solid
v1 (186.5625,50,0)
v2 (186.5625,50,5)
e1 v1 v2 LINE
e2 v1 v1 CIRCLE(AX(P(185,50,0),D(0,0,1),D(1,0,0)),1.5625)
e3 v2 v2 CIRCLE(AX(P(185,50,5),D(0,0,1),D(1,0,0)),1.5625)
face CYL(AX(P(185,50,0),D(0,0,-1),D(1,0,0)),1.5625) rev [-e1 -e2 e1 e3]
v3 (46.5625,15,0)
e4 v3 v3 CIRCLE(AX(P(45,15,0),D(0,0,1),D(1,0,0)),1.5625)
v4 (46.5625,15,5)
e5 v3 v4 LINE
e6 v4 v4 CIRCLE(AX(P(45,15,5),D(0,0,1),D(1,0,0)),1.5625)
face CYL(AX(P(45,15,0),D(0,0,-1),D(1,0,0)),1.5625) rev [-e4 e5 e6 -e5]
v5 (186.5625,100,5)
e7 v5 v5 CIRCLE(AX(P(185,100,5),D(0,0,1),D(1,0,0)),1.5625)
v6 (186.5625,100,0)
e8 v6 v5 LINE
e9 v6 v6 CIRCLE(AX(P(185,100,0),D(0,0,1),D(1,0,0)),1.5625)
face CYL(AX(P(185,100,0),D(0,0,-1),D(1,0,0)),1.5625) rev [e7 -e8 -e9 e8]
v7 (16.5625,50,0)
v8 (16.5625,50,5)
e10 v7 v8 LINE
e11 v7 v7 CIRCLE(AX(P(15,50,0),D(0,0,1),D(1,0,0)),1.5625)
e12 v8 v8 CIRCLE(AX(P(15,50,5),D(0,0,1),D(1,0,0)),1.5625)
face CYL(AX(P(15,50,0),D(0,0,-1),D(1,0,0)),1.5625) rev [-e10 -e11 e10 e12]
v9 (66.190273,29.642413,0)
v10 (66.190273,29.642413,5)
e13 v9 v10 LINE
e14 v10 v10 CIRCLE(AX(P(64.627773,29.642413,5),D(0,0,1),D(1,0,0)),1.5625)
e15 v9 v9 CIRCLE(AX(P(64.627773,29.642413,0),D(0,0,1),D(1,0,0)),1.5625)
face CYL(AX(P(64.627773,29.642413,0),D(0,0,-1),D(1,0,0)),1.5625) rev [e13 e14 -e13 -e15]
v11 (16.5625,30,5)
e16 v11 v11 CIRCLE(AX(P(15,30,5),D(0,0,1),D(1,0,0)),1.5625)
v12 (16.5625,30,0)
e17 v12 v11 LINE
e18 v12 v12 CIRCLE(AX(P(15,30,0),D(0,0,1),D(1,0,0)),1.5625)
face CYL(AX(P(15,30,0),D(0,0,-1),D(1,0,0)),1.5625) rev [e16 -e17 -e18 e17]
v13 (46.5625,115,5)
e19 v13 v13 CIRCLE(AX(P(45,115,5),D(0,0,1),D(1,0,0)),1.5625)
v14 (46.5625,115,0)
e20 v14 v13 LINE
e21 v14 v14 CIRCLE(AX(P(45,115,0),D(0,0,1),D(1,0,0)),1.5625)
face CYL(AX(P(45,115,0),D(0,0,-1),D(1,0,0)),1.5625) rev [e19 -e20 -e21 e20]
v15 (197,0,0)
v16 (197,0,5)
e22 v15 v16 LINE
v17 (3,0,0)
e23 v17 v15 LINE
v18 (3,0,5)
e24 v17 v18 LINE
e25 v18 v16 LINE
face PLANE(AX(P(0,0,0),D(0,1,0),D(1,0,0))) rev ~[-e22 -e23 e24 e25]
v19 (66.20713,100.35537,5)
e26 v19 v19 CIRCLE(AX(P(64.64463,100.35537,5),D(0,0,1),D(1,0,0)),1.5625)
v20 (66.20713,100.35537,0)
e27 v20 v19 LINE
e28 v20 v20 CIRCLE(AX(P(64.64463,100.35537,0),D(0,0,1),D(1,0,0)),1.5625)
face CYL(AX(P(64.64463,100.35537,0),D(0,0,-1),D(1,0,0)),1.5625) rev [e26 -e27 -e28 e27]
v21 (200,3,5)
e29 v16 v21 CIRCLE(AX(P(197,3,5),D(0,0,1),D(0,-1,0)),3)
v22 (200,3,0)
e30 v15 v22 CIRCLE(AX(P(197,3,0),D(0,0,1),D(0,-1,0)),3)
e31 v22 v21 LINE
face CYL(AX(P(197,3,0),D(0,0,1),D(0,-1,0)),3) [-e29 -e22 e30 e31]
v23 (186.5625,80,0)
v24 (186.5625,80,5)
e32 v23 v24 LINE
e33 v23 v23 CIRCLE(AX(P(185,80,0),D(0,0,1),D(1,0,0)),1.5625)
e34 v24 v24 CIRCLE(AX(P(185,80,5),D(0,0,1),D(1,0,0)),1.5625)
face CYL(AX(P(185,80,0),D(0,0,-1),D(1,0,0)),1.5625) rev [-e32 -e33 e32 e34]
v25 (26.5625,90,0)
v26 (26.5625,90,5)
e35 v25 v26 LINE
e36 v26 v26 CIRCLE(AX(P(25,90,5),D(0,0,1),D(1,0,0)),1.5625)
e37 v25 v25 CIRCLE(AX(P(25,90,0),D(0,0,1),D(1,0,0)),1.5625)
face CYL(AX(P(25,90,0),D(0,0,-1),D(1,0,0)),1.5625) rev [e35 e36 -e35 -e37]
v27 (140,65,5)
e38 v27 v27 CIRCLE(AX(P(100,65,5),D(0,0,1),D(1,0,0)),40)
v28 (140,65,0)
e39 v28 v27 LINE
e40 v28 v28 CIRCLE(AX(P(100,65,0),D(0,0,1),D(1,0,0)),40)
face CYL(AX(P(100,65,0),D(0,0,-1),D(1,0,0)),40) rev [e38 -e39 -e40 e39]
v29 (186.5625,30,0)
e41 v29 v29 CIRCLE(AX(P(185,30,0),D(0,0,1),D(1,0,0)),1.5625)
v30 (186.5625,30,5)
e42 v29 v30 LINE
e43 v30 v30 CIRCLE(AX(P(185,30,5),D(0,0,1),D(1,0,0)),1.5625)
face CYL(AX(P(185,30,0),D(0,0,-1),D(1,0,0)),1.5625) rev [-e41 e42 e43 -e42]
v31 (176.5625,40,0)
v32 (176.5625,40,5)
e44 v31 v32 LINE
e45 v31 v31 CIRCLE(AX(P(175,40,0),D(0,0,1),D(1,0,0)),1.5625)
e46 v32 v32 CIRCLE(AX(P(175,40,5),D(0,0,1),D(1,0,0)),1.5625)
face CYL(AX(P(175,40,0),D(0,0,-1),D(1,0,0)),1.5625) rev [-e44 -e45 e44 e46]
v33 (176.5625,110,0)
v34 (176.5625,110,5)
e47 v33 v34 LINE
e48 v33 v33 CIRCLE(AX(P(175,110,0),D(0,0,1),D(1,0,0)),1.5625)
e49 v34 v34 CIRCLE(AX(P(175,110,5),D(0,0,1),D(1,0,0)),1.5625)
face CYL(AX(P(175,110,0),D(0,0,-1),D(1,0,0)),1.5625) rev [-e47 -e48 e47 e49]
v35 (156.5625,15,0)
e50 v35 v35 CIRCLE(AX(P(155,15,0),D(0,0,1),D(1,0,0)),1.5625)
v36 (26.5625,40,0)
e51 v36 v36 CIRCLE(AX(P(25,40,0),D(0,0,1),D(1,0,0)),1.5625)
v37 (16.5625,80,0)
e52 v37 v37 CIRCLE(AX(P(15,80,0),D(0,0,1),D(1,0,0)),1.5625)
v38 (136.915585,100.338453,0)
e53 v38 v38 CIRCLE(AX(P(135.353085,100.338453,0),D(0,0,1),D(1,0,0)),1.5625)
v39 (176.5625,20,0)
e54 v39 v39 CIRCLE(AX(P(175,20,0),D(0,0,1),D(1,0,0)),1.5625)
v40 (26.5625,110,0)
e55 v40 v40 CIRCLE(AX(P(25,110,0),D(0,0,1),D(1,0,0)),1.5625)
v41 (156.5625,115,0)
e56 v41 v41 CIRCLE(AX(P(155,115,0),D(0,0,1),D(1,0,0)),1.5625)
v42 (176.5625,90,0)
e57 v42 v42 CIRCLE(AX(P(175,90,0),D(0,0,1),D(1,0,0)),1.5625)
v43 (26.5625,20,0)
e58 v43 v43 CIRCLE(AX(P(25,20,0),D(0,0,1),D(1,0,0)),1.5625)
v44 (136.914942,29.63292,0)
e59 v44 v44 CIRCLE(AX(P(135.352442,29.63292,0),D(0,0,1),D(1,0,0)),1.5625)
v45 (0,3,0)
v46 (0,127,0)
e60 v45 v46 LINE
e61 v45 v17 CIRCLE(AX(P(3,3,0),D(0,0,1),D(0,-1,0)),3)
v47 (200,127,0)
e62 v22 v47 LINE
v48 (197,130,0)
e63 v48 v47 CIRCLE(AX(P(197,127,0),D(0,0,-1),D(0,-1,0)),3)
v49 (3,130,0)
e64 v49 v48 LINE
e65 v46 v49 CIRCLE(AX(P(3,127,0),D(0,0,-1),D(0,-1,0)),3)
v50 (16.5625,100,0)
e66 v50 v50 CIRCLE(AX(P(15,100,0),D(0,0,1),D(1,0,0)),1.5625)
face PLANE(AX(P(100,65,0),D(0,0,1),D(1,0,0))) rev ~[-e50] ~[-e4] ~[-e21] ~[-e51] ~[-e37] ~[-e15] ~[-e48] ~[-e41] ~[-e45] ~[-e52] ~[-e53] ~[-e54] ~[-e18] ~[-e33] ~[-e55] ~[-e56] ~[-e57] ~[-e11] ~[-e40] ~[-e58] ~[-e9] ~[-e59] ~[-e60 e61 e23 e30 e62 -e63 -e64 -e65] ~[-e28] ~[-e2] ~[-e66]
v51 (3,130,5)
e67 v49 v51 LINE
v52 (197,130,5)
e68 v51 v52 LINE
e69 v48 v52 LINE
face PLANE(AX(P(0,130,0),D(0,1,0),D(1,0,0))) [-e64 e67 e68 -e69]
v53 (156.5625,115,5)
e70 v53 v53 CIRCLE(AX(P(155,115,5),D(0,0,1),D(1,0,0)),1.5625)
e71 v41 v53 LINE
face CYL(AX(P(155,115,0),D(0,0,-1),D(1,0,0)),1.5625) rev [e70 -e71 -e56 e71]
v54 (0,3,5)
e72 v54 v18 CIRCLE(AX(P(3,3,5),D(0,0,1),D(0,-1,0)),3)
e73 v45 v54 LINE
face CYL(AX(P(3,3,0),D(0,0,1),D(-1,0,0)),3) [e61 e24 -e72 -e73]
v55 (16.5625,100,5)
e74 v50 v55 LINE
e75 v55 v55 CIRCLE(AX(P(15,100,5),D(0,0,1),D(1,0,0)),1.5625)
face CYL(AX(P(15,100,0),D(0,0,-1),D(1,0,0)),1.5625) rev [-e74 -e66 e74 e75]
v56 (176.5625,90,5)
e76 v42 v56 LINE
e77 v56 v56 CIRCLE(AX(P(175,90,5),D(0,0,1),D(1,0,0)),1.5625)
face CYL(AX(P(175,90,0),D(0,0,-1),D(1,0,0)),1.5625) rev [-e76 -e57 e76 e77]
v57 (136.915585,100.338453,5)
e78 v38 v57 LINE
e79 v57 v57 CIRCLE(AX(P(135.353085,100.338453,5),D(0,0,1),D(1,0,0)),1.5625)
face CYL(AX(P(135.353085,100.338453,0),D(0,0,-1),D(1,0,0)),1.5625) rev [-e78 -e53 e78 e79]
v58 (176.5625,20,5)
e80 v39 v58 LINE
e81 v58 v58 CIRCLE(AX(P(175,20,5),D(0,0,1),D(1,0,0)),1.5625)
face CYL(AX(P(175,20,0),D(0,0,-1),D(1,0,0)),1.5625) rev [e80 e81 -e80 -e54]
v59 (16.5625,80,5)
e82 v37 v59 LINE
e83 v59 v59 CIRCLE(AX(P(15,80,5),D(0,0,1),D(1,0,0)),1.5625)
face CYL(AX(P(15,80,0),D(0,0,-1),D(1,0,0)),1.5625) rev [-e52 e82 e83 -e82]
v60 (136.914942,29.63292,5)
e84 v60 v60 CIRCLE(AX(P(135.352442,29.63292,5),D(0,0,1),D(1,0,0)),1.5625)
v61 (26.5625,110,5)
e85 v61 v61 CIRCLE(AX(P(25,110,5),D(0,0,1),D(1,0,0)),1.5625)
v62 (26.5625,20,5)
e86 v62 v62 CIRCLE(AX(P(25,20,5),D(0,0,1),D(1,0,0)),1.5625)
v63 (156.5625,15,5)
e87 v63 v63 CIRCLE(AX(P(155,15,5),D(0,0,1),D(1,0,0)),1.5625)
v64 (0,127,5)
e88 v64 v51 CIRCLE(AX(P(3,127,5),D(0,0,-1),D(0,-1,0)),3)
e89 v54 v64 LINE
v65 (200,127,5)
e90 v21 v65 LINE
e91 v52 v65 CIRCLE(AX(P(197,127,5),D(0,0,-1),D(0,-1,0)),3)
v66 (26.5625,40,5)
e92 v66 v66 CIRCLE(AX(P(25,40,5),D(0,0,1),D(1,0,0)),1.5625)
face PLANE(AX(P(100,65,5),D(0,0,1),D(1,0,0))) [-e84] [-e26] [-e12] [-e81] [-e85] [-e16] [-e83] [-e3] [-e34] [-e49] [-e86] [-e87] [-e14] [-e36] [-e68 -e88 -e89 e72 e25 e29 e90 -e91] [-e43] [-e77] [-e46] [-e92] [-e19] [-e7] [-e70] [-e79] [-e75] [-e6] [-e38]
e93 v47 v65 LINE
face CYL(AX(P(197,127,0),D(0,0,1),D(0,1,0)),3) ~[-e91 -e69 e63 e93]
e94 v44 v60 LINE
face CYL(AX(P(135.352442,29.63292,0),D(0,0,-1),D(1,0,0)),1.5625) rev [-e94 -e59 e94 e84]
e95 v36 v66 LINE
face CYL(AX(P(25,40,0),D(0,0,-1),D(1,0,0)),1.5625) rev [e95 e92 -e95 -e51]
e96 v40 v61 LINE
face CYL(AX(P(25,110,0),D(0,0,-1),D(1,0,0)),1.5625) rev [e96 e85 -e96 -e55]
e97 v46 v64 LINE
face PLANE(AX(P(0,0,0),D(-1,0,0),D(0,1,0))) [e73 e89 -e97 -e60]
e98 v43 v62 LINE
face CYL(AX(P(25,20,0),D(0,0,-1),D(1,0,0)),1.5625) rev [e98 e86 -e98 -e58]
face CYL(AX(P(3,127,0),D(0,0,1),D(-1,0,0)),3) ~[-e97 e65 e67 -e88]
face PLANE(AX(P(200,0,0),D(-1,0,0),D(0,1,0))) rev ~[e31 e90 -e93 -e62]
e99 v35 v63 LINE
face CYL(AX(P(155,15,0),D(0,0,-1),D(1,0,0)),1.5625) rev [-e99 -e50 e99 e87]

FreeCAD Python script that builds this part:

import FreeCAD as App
import Part
import Sketcher


def edges_at(feature, points):
    """Names of the edges that pass closest to the given points."""
    edges = feature.Shape.Edges
    near = lambda p: min(range(len(edges)), key=lambda i: edges[i].distToShape(Part.Vertex(*p))[0])
    return sorted({f"Edge{near(p) + 1}" for p in points})

doc = App.newDocument("Part")
body = doc.addObject("PartDesign::Body", "Body")

sketch1 = body.newObject("Sketcher::SketchObject", "Sketch")
sketch1.AttachmentSupport = (doc.getObject("XY_Plane"), [""])
sketch1.MapMode = "FlatFace"
sketch1.addGeometry(Part.LineSegment(App.Vector(0, 130, 0), App.Vector(0, 0, 0)), False)
sketch1.addGeometry(Part.LineSegment(App.Vector(0, 0, 0), App.Vector(200, 0, 0)), False)
sketch1.addGeometry(Part.LineSegment(App.Vector(200, 0, 0), App.Vector(200, 130, 0)), False)
sketch1.addGeometry(Part.LineSegment(App.Vector(200, 130, 0), App.Vector(0, 130, 0)), False)
sketch1.addGeometry(Part.Circle(App.Vector(25, 20, 0), App.Vector(0, 0, 1), 1.5625), False)
sketch1.addGeometry(Part.Circle(App.Vector(45, 15, 0), App.Vector(0, 0, 1), 1.5625), False)
sketch1.addGeometry(Part.Circle(App.Vector(15, 30, 0), App.Vector(0, 0, 1), 1.5625), False)
sketch1.addGeometry(Part.Circle(App.Vector(64.627773, 29.642413, 0), App.Vector(0, 0, 1), 1.5625), False)
sketch1.addGeometry(Part.Circle(App.Vector(25, 40, 0), App.Vector(0, 0, 1), 1.5625), False)
sketch1.addGeometry(Part.Circle(App.Vector(15, 50, 0), App.Vector(0, 0, 1), 1.5625), False)
sketch1.addGeometry(Part.Circle(App.Vector(135.352442, 29.63292, 0), App.Vector(0, 0, 1), 1.5625), False)
sketch1.addGeometry(Part.Circle(App.Vector(155, 15, 0), App.Vector(0, 0, 1), 1.5625), False)
sketch1.addGeometry(Part.Circle(App.Vector(175, 20, 0), App.Vector(0, 0, 1), 1.5625), False)
sketch1.addGeometry(Part.Circle(App.Vector(185, 30, 0), App.Vector(0, 0, 1), 1.5625), False)
sketch1.addGeometry(Part.Circle(App.Vector(175, 40, 0), App.Vector(0, 0, 1), 1.5625), False)
sketch1.addGeometry(Part.Circle(App.Vector(185, 50, 0), App.Vector(0, 0, 1), 1.5625), False)
sketch1.addGeometry(Part.Circle(App.Vector(15, 80, 0), App.Vector(0, 0, 1), 1.5625), False)
sketch1.addGeometry(Part.Circle(App.Vector(25, 90, 0), App.Vector(0, 0, 1), 1.5625), False)
sketch1.addGeometry(Part.Circle(App.Vector(15, 100, 0), App.Vector(0, 0, 1), 1.5625), False)
sketch1.addGeometry(Part.Circle(App.Vector(25, 110, 0), App.Vector(0, 0, 1), 1.5625), False)
sketch1.addGeometry(Part.Circle(App.Vector(45, 115, 0), App.Vector(0, 0, 1), 1.5625), False)
sketch1.addGeometry(Part.Circle(App.Vector(64.64463, 100.35537, 0), App.Vector(0, 0, 1), 1.5625), False)
sketch1.addGeometry(Part.Circle(App.Vector(100, 65, 0), App.Vector(0, 0, 1), 40), False)
sketch1.addGeometry(Part.Circle(App.Vector(185, 80, 0), App.Vector(0, 0, 1), 1.5625), False)
sketch1.addGeometry(Part.Circle(App.Vector(175, 90, 0), App.Vector(0, 0, 1), 1.5625), False)
sketch1.addGeometry(Part.Circle(App.Vector(135.353085, 100.338453, 0), App.Vector(0, 0, 1), 1.5625), False)
sketch1.addGeometry(Part.Circle(App.Vector(185, 100, 0), App.Vector(0, 0, 1), 1.5625), False)
sketch1.addGeometry(Part.Circle(App.Vector(155, 115, 0), App.Vector(0, 0, 1), 1.5625), False)
sketch1.addGeometry(Part.Circle(App.Vector(175, 110, 0), App.Vector(0, 0, 1), 1.5625), False)
sketch1.addConstraint(Sketcher.Constraint("Coincident", 0, 2, 1, 1))
sketch1.addConstraint(Sketcher.Constraint("Coincident", 1, 2, 2, 1))
sketch1.addConstraint(Sketcher.Constraint("Coincident", 2, 2, 3, 1))
sketch1.addConstraint(Sketcher.Constraint("Coincident", 3, 2, 0, 1))
sketch1.addConstraint(Sketcher.Constraint("Vertical", 0))
sketch1.addConstraint(Sketcher.Constraint("Horizontal", 1))
sketch1.addConstraint(Sketcher.Constraint("Vertical", 2))
sketch1.addConstraint(Sketcher.Constraint("Horizontal", 3))
sketch1.addConstraint(Sketcher.Constraint("Coincident", 0, 2, -1, 1))
sketch1.addConstraint(Sketcher.Constraint("Equal", 4, 5))
sketch1.addConstraint(Sketcher.Constraint("Equal", 5, 6))
sketch1.addConstraint(Sketcher.Constraint("Equal", 6, 7))
sketch1.addConstraint(Sketcher.Constraint("Equal", 7, 8))
sketch1.addConstraint(Sketcher.Constraint("Equal", 8, 9))
sketch1.addConstraint(Sketcher.Constraint("Equal", 9, 10))
sketch1.addConstraint(Sketcher.Constraint("Equal", 10, 11))
sketch1.addConstraint(Sketcher.Constraint("Equal", 11, 12))
sketch1.addConstraint(Sketcher.Constraint("Equal", 12, 13))
sketch1.addConstraint(Sketcher.Constraint("Equal", 13, 14))
sketch1.addConstraint(Sketcher.Constraint("Equal", 14, 15))
sketch1.addConstraint(Sketcher.Constraint("Equal", 15, 16))
sketch1.addConstraint(Sketcher.Constraint("Equal", 16, 17))
sketch1.addConstraint(Sketcher.Constraint("Equal", 17, 18))
sketch1.addConstraint(Sketcher.Constraint("Equal", 18, 19))
sketch1.addConstraint(Sketcher.Constraint("Equal", 19, 20))
sketch1.addConstraint(Sketcher.Constraint("Equal", 20, 21))
sketch1.addConstraint(Sketcher.Constraint("Equal", 21, 23))
sketch1.addConstraint(Sketcher.Constraint("Equal", 23, 24))
sketch1.addConstraint(Sketcher.Constraint("Equal", 24, 25))
sketch1.addConstraint(Sketcher.Constraint("Equal", 25, 26))
sketch1.addConstraint(Sketcher.Constraint("Equal", 26, 27))
sketch1.addConstraint(Sketcher.Constraint("Equal", 27, 28))
sketch1.addConstraint(Sketcher.Constraint("Horizontal", 5, 3, 11, 3))
sketch1.addConstraint(Sketcher.Constraint("Horizontal", 4, 3, 12, 3))
sketch1.addConstraint(Sketcher.Constraint("Horizontal", 6, 3, 13, 3))
sketch1.addConstraint(Sketcher.Constraint("Horizontal", 8, 3, 14, 3))
sketch1.addConstraint(Sketcher.Constraint("Horizontal", 9, 3, 15, 3))
sketch1.addConstraint(Sketcher.Constraint("Horizontal", 16, 3, 23, 3))
sketch1.addConstraint(Sketcher.Constraint("Horizontal", 17, 3, 24, 3))
sketch1.addConstraint(Sketcher.Constraint("Horizontal", 18, 3, 26, 3))
sketch1.addConstraint(Sketcher.Constraint("Horizontal", 20, 3, 27, 3))
sketch1.addConstraint(Sketcher.Constraint("Horizontal", 19, 3, 28, 3))
sketch1.addConstraint(Sketcher.Constraint("Vertical", 4, 3, 8, 3))
sketch1.addConstraint(Sketcher.Constraint("Vertical", 6, 3, 9, 3))
sketch1.addConstraint(Sketcher.Constraint("Vertical", 12, 3, 14, 3))
sketch1.addConstraint(Sketcher.Constraint("Vertical", 13, 3, 15, 3))
sketch1.addConstraint(Sketcher.Constraint("Vertical", 9, 3, 16, 3))
sketch1.addConstraint(Sketcher.Constraint("Vertical", 8, 3, 17, 3))
sketch1.addConstraint(Sketcher.Constraint("Vertical", 16, 3, 18, 3))
sketch1.addConstraint(Sketcher.Constraint("Vertical", 17, 3, 19, 3))
sketch1.addConstraint(Sketcher.Constraint("Vertical", 5, 3, 20, 3))
sketch1.addConstraint(Sketcher.Constraint("Vertical", 15, 3, 23, 3))
sketch1.addConstraint(Sketcher.Constraint("Vertical", 14, 3, 24, 3))
sketch1.addConstraint(Sketcher.Constraint("Vertical", 23, 3, 26, 3))
sketch1.addConstraint(Sketcher.Constraint("Vertical", 11, 3, 27, 3))
sketch1.addConstraint(Sketcher.Constraint("Vertical", 24, 3, 28, 3))
sketch1.addConstraint(Sketcher.Constraint("Diameter", 22, 80.0))
sketch1.addConstraint(Sketcher.Constraint("DistanceX", 1, 1, 1, 2, 200.0))
sketch1.addConstraint(Sketcher.Constraint("DistanceY", 0, 2, 0, 1, 130.0))
sketch1.addConstraint(Sketcher.Constraint("Diameter", 4, 3.125))
sketch1.addConstraint(Sketcher.Constraint("DistanceX", -1, 1, 4, 3, 25.0))
sketch1.addConstraint(Sketcher.Constraint("DistanceY", -1, 1, 4, 3, 20.0))
sketch1.addConstraint(Sketcher.Constraint("DistanceX", -1, 1, 5, 3, 45.0))
sketch1.addConstraint(Sketcher.Constraint("DistanceY", -1, 1, 5, 3, 15.0))
sketch1.addConstraint(Sketcher.Constraint("DistanceX", -1, 1, 6, 3, 15.0))
sketch1.addConstraint(Sketcher.Constraint("DistanceY", -1, 1, 6, 3, 30.0))
sketch1.addConstraint(Sketcher.Constraint("DistanceY", -1, 1, 8, 3, 40.0))
sketch1.addConstraint(Sketcher.Constraint("DistanceY", -1, 1, 9, 3, 50.0))
sketch1.addConstraint(Sketcher.Constraint("DistanceX", -1, 1, 11, 3, 155.0))
sketch1.addConstraint(Sketcher.Constraint("DistanceX", -1, 1, 12, 3, 175.0))
sketch1.addConstraint(Sketcher.Constraint("DistanceX", -1, 1, 13, 3, 185.0))
sketch1.addConstraint(Sketcher.Constraint("DistanceY", -1, 1, 16, 3, 80.0))
sketch1.addConstraint(Sketcher.Constraint("DistanceY", -1, 1, 17, 3, 90.0))
sketch1.addConstraint(Sketcher.Constraint("DistanceY", -1, 1, 18, 3, 100.0))
sketch1.addConstraint(Sketcher.Constraint("DistanceY", -1, 1, 19, 3, 110.0))
sketch1.addConstraint(Sketcher.Constraint("DistanceY", -1, 1, 20, 3, 115.0))
sketch1.addConstraint(Sketcher.Constraint("DistanceX", -1, 1, 22, 3, 100.0))
sketch1.addConstraint(Sketcher.Constraint("DistanceY", -1, 1, 22, 3, 65.0))
sketch1.addConstraint(Sketcher.Constraint("DistanceX", -1, 1, 10, 3, 135.352442))
sketch1.addConstraint(Sketcher.Constraint("DistanceY", -1, 1, 10, 3, 29.63292))
sketch1.addConstraint(Sketcher.Constraint("DistanceX", -1, 1, 21, 3, 64.64463))
sketch1.addConstraint(Sketcher.Constraint("DistanceY", -1, 1, 21, 3, 100.35537))
sketch1.addConstraint(Sketcher.Constraint("DistanceX", 7, 3, 10, 3, 70.724669))
sketch1.addConstraint(Sketcher.Constraint("DistanceY", -1, 1, 7, 3, 29.642413))
sketch1.addConstraint(Sketcher.Constraint("DistanceX", -1, 1, 25, 3, 135.353085))
sketch1.addConstraint(Sketcher.Constraint("DistanceY", -1, 1, 25, 3, 100.338453))
pad1 = body.newObject("PartDesign::Pad", "Pad")
pad1.Profile = sketch1
pad1.Length = 5
doc.recompute()

fillet = body.newObject("PartDesign::Fillet", "Fillet")
fillet.Base = (pad1, edges_at(pad1, [
    (0, 0, 2.5),
    (200, 0, 2.5),
    (200, 130, 2.5),
    (0, 130, 2.5),
]))
fillet.Radius = 3

doc.recompute()
